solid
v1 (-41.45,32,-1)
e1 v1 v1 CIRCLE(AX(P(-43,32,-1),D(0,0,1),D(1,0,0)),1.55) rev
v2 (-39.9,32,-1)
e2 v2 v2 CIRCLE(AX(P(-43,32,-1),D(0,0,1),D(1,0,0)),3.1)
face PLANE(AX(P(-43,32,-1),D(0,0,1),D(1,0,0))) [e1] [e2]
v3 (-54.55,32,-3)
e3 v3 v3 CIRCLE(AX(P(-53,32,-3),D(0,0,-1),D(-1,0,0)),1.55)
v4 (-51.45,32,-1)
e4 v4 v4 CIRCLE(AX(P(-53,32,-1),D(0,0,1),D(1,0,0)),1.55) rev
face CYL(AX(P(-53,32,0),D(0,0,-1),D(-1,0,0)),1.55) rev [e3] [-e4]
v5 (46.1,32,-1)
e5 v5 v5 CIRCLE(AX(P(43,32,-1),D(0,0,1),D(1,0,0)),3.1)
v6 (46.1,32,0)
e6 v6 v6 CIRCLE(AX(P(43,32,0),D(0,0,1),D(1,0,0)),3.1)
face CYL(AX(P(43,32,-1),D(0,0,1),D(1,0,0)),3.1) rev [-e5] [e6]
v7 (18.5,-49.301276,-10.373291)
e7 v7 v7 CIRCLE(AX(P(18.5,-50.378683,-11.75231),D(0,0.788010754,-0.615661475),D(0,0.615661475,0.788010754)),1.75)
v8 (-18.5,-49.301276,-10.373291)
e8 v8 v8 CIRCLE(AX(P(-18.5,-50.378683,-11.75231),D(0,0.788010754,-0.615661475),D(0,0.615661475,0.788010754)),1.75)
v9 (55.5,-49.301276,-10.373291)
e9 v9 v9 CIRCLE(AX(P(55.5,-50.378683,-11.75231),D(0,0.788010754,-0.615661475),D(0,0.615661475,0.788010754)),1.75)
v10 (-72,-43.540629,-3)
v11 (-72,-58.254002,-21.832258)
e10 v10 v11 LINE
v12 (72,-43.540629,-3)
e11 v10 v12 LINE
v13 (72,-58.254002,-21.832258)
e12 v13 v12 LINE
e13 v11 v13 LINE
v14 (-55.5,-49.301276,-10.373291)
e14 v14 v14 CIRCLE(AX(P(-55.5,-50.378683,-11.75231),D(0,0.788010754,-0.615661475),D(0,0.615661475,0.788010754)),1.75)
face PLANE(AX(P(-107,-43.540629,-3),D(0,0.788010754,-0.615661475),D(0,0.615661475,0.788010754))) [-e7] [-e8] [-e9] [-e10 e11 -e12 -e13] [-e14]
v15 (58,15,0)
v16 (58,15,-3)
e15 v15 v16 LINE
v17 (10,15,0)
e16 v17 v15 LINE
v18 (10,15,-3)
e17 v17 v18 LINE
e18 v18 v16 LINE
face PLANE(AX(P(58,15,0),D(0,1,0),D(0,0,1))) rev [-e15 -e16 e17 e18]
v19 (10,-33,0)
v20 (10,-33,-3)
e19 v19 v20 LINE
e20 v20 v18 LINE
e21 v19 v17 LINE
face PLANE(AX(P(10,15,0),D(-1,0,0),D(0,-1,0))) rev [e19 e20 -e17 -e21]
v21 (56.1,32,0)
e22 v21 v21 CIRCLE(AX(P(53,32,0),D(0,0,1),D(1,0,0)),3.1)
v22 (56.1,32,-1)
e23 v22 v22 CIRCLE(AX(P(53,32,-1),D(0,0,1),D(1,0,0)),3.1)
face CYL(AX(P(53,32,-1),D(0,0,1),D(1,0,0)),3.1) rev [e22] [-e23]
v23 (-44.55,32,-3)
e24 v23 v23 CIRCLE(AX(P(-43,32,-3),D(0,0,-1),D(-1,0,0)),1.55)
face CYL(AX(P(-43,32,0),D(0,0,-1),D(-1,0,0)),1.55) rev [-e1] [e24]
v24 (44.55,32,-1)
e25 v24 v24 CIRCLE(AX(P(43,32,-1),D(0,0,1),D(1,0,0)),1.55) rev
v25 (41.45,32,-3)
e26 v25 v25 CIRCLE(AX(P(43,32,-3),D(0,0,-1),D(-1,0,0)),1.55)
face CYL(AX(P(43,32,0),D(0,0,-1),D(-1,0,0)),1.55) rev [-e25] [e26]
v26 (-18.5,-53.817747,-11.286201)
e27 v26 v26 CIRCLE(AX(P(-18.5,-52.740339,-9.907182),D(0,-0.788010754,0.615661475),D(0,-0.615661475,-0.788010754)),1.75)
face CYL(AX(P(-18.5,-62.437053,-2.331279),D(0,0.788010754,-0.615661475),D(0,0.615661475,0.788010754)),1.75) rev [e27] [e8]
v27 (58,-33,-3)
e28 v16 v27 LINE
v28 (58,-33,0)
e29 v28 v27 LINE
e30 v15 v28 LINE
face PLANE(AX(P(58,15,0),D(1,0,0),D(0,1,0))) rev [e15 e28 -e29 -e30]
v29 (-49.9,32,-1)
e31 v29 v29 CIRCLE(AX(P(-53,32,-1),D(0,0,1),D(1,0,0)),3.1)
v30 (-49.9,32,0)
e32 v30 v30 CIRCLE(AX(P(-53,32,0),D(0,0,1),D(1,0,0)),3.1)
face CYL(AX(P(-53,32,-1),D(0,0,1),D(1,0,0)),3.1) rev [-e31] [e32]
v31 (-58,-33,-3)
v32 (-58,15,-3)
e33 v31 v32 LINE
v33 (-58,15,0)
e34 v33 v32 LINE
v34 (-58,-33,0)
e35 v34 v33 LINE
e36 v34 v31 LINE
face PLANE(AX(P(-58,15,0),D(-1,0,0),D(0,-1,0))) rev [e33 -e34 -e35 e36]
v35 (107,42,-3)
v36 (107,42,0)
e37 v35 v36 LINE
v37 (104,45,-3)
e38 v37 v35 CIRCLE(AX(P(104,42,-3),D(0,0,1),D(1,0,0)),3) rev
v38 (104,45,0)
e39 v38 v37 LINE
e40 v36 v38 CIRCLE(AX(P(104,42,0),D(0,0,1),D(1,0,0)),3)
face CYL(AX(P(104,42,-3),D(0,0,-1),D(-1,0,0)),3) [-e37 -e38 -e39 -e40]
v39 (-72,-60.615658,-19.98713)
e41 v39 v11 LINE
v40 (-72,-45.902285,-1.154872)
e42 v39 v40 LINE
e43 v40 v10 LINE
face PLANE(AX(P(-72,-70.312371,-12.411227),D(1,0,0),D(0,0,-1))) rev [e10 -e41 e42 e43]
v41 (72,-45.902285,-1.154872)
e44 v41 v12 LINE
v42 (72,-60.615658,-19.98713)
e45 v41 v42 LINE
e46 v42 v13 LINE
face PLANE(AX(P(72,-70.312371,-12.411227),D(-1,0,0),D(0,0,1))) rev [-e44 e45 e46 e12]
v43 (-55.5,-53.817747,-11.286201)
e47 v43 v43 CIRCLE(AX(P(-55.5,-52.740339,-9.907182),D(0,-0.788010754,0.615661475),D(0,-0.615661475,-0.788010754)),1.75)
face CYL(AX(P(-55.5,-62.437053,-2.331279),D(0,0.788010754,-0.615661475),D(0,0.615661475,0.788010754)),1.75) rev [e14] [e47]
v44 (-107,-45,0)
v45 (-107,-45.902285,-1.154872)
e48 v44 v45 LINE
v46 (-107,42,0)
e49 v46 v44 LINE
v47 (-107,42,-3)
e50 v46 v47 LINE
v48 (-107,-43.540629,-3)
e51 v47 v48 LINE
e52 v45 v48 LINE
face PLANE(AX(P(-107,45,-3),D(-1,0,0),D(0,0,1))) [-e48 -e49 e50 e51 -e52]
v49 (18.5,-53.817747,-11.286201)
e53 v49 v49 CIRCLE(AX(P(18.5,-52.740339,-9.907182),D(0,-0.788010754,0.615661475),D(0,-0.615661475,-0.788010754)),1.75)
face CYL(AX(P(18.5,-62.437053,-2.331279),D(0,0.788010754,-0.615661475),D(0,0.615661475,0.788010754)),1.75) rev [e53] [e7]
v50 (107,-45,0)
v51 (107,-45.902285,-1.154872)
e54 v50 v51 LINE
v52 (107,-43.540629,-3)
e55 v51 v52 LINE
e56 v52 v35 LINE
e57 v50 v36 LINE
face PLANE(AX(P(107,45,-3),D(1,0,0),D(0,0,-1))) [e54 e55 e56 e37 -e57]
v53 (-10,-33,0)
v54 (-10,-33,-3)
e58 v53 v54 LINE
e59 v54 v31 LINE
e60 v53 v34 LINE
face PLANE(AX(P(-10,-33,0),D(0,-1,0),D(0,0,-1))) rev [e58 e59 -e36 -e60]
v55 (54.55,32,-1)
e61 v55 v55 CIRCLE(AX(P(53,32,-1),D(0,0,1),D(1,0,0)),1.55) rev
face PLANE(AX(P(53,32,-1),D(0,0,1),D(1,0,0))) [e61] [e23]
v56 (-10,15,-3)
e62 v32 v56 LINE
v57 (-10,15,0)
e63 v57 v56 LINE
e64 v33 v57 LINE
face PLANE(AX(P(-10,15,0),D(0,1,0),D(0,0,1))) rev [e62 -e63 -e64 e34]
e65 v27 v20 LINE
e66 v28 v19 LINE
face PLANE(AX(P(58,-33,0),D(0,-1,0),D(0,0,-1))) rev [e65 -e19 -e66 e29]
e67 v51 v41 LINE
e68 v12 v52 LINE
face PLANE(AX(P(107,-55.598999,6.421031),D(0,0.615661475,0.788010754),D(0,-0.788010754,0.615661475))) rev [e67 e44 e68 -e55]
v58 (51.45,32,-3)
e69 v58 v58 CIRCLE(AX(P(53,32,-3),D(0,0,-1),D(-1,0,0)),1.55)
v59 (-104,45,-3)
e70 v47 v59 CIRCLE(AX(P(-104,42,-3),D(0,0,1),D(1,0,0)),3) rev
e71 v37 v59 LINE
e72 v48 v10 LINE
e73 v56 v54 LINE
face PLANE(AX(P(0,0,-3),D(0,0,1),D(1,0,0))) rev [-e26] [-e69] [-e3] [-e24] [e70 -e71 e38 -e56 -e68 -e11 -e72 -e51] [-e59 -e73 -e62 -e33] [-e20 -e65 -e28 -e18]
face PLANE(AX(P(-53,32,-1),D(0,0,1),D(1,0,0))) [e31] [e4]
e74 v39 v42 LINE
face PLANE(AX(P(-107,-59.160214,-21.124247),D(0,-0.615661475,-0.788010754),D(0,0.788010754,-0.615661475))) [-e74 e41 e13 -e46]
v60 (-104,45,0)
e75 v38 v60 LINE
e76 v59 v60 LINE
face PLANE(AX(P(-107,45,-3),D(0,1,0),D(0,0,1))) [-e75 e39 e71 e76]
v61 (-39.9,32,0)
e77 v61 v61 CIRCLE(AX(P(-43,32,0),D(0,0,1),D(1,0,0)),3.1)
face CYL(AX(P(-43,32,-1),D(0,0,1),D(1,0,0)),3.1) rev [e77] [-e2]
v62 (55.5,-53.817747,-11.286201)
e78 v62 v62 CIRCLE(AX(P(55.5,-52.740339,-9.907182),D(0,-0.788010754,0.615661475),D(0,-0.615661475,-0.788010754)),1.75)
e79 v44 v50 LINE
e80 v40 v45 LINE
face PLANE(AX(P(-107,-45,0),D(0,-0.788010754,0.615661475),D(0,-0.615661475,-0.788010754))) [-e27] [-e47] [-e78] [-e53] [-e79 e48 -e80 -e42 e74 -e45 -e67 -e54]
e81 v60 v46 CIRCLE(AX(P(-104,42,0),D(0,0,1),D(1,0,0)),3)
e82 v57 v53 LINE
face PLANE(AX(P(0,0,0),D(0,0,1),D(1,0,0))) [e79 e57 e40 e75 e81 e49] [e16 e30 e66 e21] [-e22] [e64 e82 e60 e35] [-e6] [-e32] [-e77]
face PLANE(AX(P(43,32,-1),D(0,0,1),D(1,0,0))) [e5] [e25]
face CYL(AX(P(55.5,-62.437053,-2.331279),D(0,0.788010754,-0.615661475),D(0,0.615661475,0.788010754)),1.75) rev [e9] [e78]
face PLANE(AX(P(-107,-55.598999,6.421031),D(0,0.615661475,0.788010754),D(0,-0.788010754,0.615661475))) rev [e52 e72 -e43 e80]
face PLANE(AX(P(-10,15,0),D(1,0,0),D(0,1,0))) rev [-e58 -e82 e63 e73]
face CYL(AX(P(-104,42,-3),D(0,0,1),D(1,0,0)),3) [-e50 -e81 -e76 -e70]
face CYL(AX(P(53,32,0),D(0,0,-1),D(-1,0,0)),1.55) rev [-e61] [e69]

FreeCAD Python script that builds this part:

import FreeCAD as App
import Part
import Sketcher
Q = App.Units.Quantity


def edges_at(feature, points):
    """Names of the edges that pass closest to the given points."""
    edges = feature.Shape.Edges
    near = lambda p: min(range(len(edges)), key=lambda i: edges[i].distToShape(Part.Vertex(*p))[0])
    return sorted({f"Edge{near(p) + 1}" for p in points})

doc = App.newDocument("Part")
body = doc.addObject("PartDesign::Body", "Body")

# Sketch on XY plane
sketch1 = doc.addObject("Sketcher::SketchObject", "Sketch")
body.addObject(sketch1)
sketch1.AttachmentSupport = (doc.XY_Plane, [""])
sketch1.MapMode = "FlatFace"
sketch1.addGeometry([
    Part.LineSegment(App.Vector(-107, 45, 0), App.Vector(-107, -45, 0)),
    Part.LineSegment(App.Vector(-107, -45, 0), App.Vector(107, -45, 0)),
    Part.LineSegment(App.Vector(107, -45, 0), App.Vector(107, 45, 0)),
    Part.LineSegment(App.Vector(107, 45, 0), App.Vector(-107, 45, 0)),
], False)
sketch1.addConstraint([
    Sketcher.Constraint("Coincident", 0, 2, 1, 1),
    Sketcher.Constraint("Coincident", 1, 2, 2, 1),
    Sketcher.Constraint("Coincident", 2, 2, 3, 1),
    Sketcher.Constraint("Coincident", 3, 2, 0, 1),
    Sketcher.Constraint("Vertical", 0),
    Sketcher.Constraint("Horizontal", 1),
    Sketcher.Constraint("Vertical", 2),
    Sketcher.Constraint("Horizontal", 3),
    Sketcher.Constraint("Symmetric", 0, 2, 2, 2, -1, 1),
    Sketcher.Constraint("DistanceX", 1, 1, 1, 2, 214.0),
    Sketcher.Constraint("DistanceY", 0, 2, 0, 1, 90.0),
])
pad1 = doc.addObject("PartDesign::Pad", "Pad")
body.addObject(pad1)
pad1.Profile = sketch1
pad1.Length = 3
pad1.Reversed = True

# Sketch on XY plane
sketch2 = doc.addObject("Sketcher::SketchObject", "Sketch001")
body.addObject(sketch2)
sketch2.AttachmentSupport = (doc.XY_Plane, [""])
sketch2.MapMode = "FlatFace"
sketch2.AttachmentOffset = App.Placement(App.Vector(0, 0, -3), App.Rotation())
sketch2.addGeometry([
    Part.Circle(App.Vector(53, 32, 0), App.Vector(0, 0, 1), 1.6),
    Part.Circle(App.Vector(43, 32, 0), App.Vector(0, 0, 1), 1.6),
    Part.Circle(App.Vector(-43, 32, 0), App.Vector(0, 0, 1), 1.6),
    Part.Circle(App.Vector(-53, 32, 0), App.Vector(0, 0, 1), 1.6),
], False)
sketch2.addConstraint([
    Sketcher.Constraint("Equal", 0, 1),
    Sketcher.Constraint("Equal", 1, 2),
    Sketcher.Constraint("Equal", 2, 3),
    Sketcher.Constraint("Symmetric", 1, 3, 2, 3, -2),
    Sketcher.Constraint("Symmetric", 0, 3, 3, 3, -2),
    Sketcher.Constraint("Horizontal", 0, 3, 1, 3),
    Sketcher.Constraint("Diameter", 0, 3.1),
    Sketcher.Constraint("DistanceX", -1, 1, 0, 3, 53.0),
    Sketcher.Constraint("DistanceY", -1, 1, 0, 3, 32.0),
    Sketcher.Constraint("DistanceX", -1, 1, 1, 3, 43.0),
])
pocket1 = doc.addObject("PartDesign::Pocket", "Pocket")
body.addObject(pocket1)
pocket1.Profile = sketch2
pocket1.Type = "ThroughAll"
pocket1.Reversed = True

# Sketch on XY plane
sketch3 = doc.addObject("Sketcher::SketchObject", "Sketch002")
body.addObject(sketch3)
sketch3.AttachmentSupport = (doc.XY_Plane, [""])
sketch3.MapMode = "FlatFace"
sketch3.addGeometry([
    Part.Circle(App.Vector(53, 32, 0), App.Vector(0, 0, 1), 3.1),
    Part.Circle(App.Vector(43, 32, 0), App.Vector(0, 0, 1), 3.1),
    Part.Circle(App.Vector(-43, 32, 0), App.Vector(0, 0, 1), 3.1),
    Part.Circle(App.Vector(-53, 32, 0), App.Vector(0, 0, 1), 3.1),
], False)
sketch3.addConstraint([
    Sketcher.Constraint("Equal", 0, 1),
    Sketcher.Constraint("Equal", 1, 2),
    Sketcher.Constraint("Equal", 2, 3),
    Sketcher.Constraint("Symmetric", 1, 3, 2, 3, -2),
    Sketcher.Constraint("Symmetric", 0, 3, 3, 3, -2),
    Sketcher.Constraint("Horizontal", 0, 3, 1, 3),
    Sketcher.Constraint("Diameter", 0, 6.2),
    Sketcher.Constraint("DistanceX", -1, 1, 0, 3, 53.0),
    Sketcher.Constraint("DistanceY", -1, 1, 0, 3, 32.0),
    Sketcher.Constraint("DistanceX", -1, 1, 1, 3, 43.0),
])
pocket2 = doc.addObject("PartDesign::Pocket", "Pocket001")
body.addObject(pocket2)
pocket2.Profile = sketch3
pocket2.Length = 1

# Sketch on XY plane
sketch4 = doc.addObject("Sketcher::SketchObject", "Sketch003")
body.addObject(sketch4)
sketch4.AttachmentSupport = (doc.XY_Plane, [""])
sketch4.MapMode = "FlatFace"
sketch4.AttachmentOffset = App.Placement(App.Vector(0, 0, -3), App.Rotation())
sketch4.addGeometry([
    Part.LineSegment(App.Vector(58, 15, 0), App.Vector(58, -33, 0)),  # 0
    Part.LineSegment(App.Vector(58, -33, 0), App.Vector(10, -33, 0)),  # 1
    Part.LineSegment(App.Vector(10, -33, 0), App.Vector(10, 15, 0)),  # 2
    Part.LineSegment(App.Vector(10, 15, 0), App.Vector(58, 15, 0)),  # 3
    Part.LineSegment(App.Vector(-10, 15, 0), App.Vector(-10, -33, 0)),  # 4
    Part.LineSegment(App.Vector(-10, -33, 0), App.Vector(-58, -33, 0)),  # 5
    Part.LineSegment(App.Vector(-58, -33, 0), App.Vector(-58, 15, 0)),  # 6
    Part.LineSegment(App.Vector(-58, 15, 0), App.Vector(-10, 15, 0)),  # 7
], False)
sketch4.addConstraint([
    Sketcher.Constraint("Coincident", 0, 2, 1, 1),
    Sketcher.Constraint("Coincident", 1, 2, 2, 1),
    Sketcher.Constraint("Coincident", 2, 2, 3, 1),
    Sketcher.Constraint("Coincident", 3, 2, 0, 1),
    Sketcher.Constraint("Coincident", 4, 2, 5, 1),
    Sketcher.Constraint("Coincident", 5, 2, 6, 1),
    Sketcher.Constraint("Coincident", 6, 2, 7, 1),
    Sketcher.Constraint("Coincident", 7, 2, 4, 1),
    Sketcher.Constraint("Vertical", 0),
    Sketcher.Constraint("Horizontal", 1),
    Sketcher.Constraint("Vertical", 2),
    Sketcher.Constraint("Horizontal", 3),
    Sketcher.Constraint("Vertical", 4),
    Sketcher.Constraint("Horizontal", 5),
    Sketcher.Constraint("Vertical", 6),
    Sketcher.Constraint("Horizontal", 7),
    Sketcher.Constraint("Symmetric", 1, 2, 4, 2, -2),
    Sketcher.Constraint("Symmetric", 3, 2, 6, 2, -2),
    Sketcher.Constraint("Equal", 7, 0),
    Sketcher.Constraint("DistanceX", 1, 2, 1, 1, 48.0),
    Sketcher.Constraint("DistanceX", -1, 1, 0, 2, 58.0),
    Sketcher.Constraint("DistanceY", 0, 2, -1, 1, 33.0),
])
pocket3 = doc.addObject("PartDesign::Pocket", "Pocket002")
body.addObject(pocket3)
pocket3.Profile = sketch4
pocket3.Type = "ThroughAll"
pocket3.Reversed = True

# Sketch on YZ plane
sketch5 = doc.addObject("Sketcher::SketchObject", "Sketch004")
body.addObject(sketch5)
sketch5.AttachmentSupport = (doc.YZ_Plane, [""])
sketch5.MapMode = "FlatFace"
sketch5.AttachmentOffset = App.Placement(App.Vector(0, 0, 107), App.Rotation())
sketch5.addGeometry([
    Part.LineSegment(App.Vector(-45, 0, 0), App.Vector(-60.6, -20, 0)),
    Part.LineSegment(App.Vector(-60.6, -20, 0), App.Vector(-59.2, -21.1, 0)),
    Part.LineSegment(App.Vector(-59.2, -21.1, 0), App.Vector(-45, -3, 0)),
    Part.LineSegment(App.Vector(-45, -3, 0), App.Vector(-45, 0, 0)),
], False)
sketch5.addConstraint([
    Sketcher.Constraint("Coincident", 0, 2, 1, 1),
    Sketcher.Constraint("Coincident", 1, 2, 2, 1),
    Sketcher.Constraint("Coincident", 2, 2, 3, 1),
    Sketcher.Constraint("Coincident", 3, 2, 0, 1),
    Sketcher.Constraint("Vertical", 3),
    Sketcher.Constraint("PointOnObject", 3, 2, -1),
    Sketcher.Constraint("Perpendicular", 0, 1),
    Sketcher.Constraint("Perpendicular", 1, 2),
    Sketcher.Constraint("DistanceY", 3, 1, 3, 2, 3.0),
    Sketcher.Constraint("Angle", 0, Q("-128 deg")),
    Sketcher.Constraint("Distance", 2, 23.0),
    Sketcher.Constraint("DistanceX", 2, 2, -1, 1, 45.0),
])
pad2 = doc.addObject("PartDesign::Pad", "Pad001")
body.addObject(pad2)
pad2.Profile = sketch5
pad2.Length = 214
pad2.Reversed = True

# Sketch on YZ plane
sketch6 = doc.addObject("Sketcher::SketchObject", "Sketch005")
body.addObject(sketch6)
sketch6.AttachmentSupport = (doc.YZ_Plane, [""])
sketch6.MapMode = "FlatFace"
sketch6.AttachmentOffset = App.Placement(App.Vector(0, 0, 107), App.Rotation())
sketch6.addGeometry([
    Part.LineSegment(App.Vector(-58.3, -21.8, 0), App.Vector(-43.5, -3, 0)),
    Part.LineSegment(App.Vector(-43.5, -3, 0), App.Vector(-45, -3, 0)),
    Part.LineSegment(App.Vector(-45, -3, 0), App.Vector(-59.2, -21.1, 0)),
    Part.LineSegment(App.Vector(-59.2, -21.1, 0), App.Vector(-58.3, -21.8, 0)),
], False)
sketch6.addConstraint([
    Sketcher.Constraint("Coincident", 0, 2, 1, 1),
    Sketcher.Constraint("Coincident", 1, 2, 2, 1),
    Sketcher.Constraint("Coincident", 2, 2, 3, 1),
    Sketcher.Constraint("Coincident", 3, 2, 0, 1),
    Sketcher.Constraint("Horizontal", 1),
    Sketcher.Constraint("Parallel", 0, 2),
    Sketcher.Constraint("Perpendicular", 2, 3),
    Sketcher.Constraint("Angle", 0, Q("52 deg")),
    Sketcher.Constraint("Distance", 2, 23.0),
    Sketcher.Constraint("DistanceY", 0, 2, -1, 1, 3.0),
    Sketcher.Constraint("DistanceX", 1, 2, -1, 1, 45.0),
    Sketcher.Constraint("Distance", 3, 1.15),
])
pad3 = doc.addObject("PartDesign::Pad", "Pad002")
body.addObject(pad3)
pad3.Profile = sketch6
pad3.Length = 214
pad3.Reversed = True

# Sketch on an angled plane
sketch7 = doc.addObject("Sketcher::SketchObject", "Sketch006")
body.addObject(sketch7)
sketch7.Placement = App.Placement(App.Vector(0, -24.123767, 18.847552), App.Rotation(App.Vector(1, 0, 0), App.Vector(0, -0.615661475, -0.788010754), App.Vector(0, 0.788010754, -0.615661475), "ZXY"))
sketch7.addGeometry([
    Part.Circle(App.Vector(55.5, 40.3, 0), App.Vector(0, 0, 1), 1.8),
    Part.Circle(App.Vector(18.5, 40.3, 0), App.Vector(0, 0, 1), 1.8),
    Part.Circle(App.Vector(-18.5, 40.3, 0), App.Vector(0, 0, 1), 1.8),
    Part.Circle(App.Vector(-55.5, 40.3, 0), App.Vector(0, 0, 1), 1.8),
], False)
sketch7.addConstraint([
    Sketcher.Constraint("Equal", 0, 1),
    Sketcher.Constraint("Equal", 1, 2),
    Sketcher.Constraint("Equal", 2, 3),
    Sketcher.Constraint("Symmetric", 1, 3, 2, 3, -2),
    Sketcher.Constraint("Symmetric", 0, 3, 3, 3, -2),
    Sketcher.Constraint("Horizontal", 0, 3, 1, 3),
    Sketcher.Constraint("Diameter", 0, 3.5),
    Sketcher.Constraint("DistanceX", 1, 3, 0, 3, 37.0),
    Sketcher.Constraint("DistanceX", 2, 3, 1, 3, 37.0),
    Sketcher.Constraint("DistanceY", -1, 1, 0, 3, 40.277161),
])
pocket4 = doc.addObject("PartDesign::Pocket", "Pocket003")
body.addObject(pocket4)
pocket4.Profile = sketch7
pocket4.Type = "ThroughAll"

# Sketch on an angled plane
sketch8 = doc.addObject("Sketcher::SketchObject", "Sketch007")
body.addObject(sketch8)
sketch8.Placement = App.Placement(App.Vector(0, -25.581587, 19.986526), App.Rotation(App.Vector(1, 0, 0), App.Vector(0, -0.615661475, -0.788010754), App.Vector(0, 0.788010754, -0.615661475), "ZXY"))
sketch8.addGeometry([
    Part.LineSegment(App.Vector(-107, 53, 0), App.Vector(-107, 29, 0)),  # 0
    Part.LineSegment(App.Vector(-107, 29, 0), App.Vector(-72, 29, 0)),  # 1
    Part.LineSegment(App.Vector(-72, 29, 0), App.Vector(-72, 53, 0)),  # 2
    Part.LineSegment(App.Vector(-72, 53, 0), App.Vector(-107, 53, 0)),  # 3
    Part.LineSegment(App.Vector(72, 53, 0), App.Vector(72, 29, 0)),  # 4
    Part.LineSegment(App.Vector(72, 29, 0), App.Vector(107, 29, 0)),  # 5
    Part.LineSegment(App.Vector(107, 29, 0), App.Vector(107, 53, 0)),  # 6
    Part.LineSegment(App.Vector(107, 53, 0), App.Vector(72, 53, 0)),  # 7
], False)
sketch8.addConstraint([
    Sketcher.Constraint("Coincident", 0, 2, 1, 1),
    Sketcher.Constraint("Coincident", 1, 2, 2, 1),
    Sketcher.Constraint("Coincident", 2, 2, 3, 1),
    Sketcher.Constraint("Coincident", 3, 2, 0, 1),
    Sketcher.Constraint("Coincident", 4, 2, 5, 1),
    Sketcher.Constraint("Coincident", 5, 2, 6, 1),
    Sketcher.Constraint("Coincident", 6, 2, 7, 1),
    Sketcher.Constraint("Coincident", 7, 2, 4, 1),
    Sketcher.Constraint("Vertical", 0),
    Sketcher.Constraint("Horizontal", 1),
    Sketcher.Constraint("Vertical", 2),
    Sketcher.Constraint("Horizontal", 3),
    Sketcher.Constraint("Vertical", 4),
    Sketcher.Constraint("Horizontal", 5),
    Sketcher.Constraint("Vertical", 6),
    Sketcher.Constraint("Horizontal", 7),
    Sketcher.Constraint("Symmetric", 1, 2, 4, 2, -2),
    Sketcher.Constraint("Symmetric", 3, 2, 6, 2, -2),
    Sketcher.Constraint("DistanceX", 1, 1, 1, 2, 35.0),
    Sketcher.Constraint("DistanceX", 0, 2, -1, 1, 107.0),
    Sketcher.Constraint("DistanceY", 0, 2, 0, 1, 23.898478),
    Sketcher.Constraint("DistanceY", -1, 1, 2, 2, 53.068799),
])
pocket5 = doc.addObject("PartDesign::Pocket", "Pocket004")
body.addObject(pocket5)
pocket5.Profile = sketch8
pocket5.Type = "ThroughAll"
doc.recompute()

fillet = doc.addObject("PartDesign::Fillet", "Fillet")
body.addObject(fillet)
fillet.Base = (pocket5, edges_at(pocket5, [(-107, 45, -1.5)]))
fillet.Radius = 3
doc.recompute()

fillet2 = doc.addObject("PartDesign::Fillet", "Fillet001")
body.addObject(fillet2)
fillet2.Base = (fillet, edges_at(fillet, [(107, 45, -1.5)]))
fillet2.Radius = 3

doc.recompute()
